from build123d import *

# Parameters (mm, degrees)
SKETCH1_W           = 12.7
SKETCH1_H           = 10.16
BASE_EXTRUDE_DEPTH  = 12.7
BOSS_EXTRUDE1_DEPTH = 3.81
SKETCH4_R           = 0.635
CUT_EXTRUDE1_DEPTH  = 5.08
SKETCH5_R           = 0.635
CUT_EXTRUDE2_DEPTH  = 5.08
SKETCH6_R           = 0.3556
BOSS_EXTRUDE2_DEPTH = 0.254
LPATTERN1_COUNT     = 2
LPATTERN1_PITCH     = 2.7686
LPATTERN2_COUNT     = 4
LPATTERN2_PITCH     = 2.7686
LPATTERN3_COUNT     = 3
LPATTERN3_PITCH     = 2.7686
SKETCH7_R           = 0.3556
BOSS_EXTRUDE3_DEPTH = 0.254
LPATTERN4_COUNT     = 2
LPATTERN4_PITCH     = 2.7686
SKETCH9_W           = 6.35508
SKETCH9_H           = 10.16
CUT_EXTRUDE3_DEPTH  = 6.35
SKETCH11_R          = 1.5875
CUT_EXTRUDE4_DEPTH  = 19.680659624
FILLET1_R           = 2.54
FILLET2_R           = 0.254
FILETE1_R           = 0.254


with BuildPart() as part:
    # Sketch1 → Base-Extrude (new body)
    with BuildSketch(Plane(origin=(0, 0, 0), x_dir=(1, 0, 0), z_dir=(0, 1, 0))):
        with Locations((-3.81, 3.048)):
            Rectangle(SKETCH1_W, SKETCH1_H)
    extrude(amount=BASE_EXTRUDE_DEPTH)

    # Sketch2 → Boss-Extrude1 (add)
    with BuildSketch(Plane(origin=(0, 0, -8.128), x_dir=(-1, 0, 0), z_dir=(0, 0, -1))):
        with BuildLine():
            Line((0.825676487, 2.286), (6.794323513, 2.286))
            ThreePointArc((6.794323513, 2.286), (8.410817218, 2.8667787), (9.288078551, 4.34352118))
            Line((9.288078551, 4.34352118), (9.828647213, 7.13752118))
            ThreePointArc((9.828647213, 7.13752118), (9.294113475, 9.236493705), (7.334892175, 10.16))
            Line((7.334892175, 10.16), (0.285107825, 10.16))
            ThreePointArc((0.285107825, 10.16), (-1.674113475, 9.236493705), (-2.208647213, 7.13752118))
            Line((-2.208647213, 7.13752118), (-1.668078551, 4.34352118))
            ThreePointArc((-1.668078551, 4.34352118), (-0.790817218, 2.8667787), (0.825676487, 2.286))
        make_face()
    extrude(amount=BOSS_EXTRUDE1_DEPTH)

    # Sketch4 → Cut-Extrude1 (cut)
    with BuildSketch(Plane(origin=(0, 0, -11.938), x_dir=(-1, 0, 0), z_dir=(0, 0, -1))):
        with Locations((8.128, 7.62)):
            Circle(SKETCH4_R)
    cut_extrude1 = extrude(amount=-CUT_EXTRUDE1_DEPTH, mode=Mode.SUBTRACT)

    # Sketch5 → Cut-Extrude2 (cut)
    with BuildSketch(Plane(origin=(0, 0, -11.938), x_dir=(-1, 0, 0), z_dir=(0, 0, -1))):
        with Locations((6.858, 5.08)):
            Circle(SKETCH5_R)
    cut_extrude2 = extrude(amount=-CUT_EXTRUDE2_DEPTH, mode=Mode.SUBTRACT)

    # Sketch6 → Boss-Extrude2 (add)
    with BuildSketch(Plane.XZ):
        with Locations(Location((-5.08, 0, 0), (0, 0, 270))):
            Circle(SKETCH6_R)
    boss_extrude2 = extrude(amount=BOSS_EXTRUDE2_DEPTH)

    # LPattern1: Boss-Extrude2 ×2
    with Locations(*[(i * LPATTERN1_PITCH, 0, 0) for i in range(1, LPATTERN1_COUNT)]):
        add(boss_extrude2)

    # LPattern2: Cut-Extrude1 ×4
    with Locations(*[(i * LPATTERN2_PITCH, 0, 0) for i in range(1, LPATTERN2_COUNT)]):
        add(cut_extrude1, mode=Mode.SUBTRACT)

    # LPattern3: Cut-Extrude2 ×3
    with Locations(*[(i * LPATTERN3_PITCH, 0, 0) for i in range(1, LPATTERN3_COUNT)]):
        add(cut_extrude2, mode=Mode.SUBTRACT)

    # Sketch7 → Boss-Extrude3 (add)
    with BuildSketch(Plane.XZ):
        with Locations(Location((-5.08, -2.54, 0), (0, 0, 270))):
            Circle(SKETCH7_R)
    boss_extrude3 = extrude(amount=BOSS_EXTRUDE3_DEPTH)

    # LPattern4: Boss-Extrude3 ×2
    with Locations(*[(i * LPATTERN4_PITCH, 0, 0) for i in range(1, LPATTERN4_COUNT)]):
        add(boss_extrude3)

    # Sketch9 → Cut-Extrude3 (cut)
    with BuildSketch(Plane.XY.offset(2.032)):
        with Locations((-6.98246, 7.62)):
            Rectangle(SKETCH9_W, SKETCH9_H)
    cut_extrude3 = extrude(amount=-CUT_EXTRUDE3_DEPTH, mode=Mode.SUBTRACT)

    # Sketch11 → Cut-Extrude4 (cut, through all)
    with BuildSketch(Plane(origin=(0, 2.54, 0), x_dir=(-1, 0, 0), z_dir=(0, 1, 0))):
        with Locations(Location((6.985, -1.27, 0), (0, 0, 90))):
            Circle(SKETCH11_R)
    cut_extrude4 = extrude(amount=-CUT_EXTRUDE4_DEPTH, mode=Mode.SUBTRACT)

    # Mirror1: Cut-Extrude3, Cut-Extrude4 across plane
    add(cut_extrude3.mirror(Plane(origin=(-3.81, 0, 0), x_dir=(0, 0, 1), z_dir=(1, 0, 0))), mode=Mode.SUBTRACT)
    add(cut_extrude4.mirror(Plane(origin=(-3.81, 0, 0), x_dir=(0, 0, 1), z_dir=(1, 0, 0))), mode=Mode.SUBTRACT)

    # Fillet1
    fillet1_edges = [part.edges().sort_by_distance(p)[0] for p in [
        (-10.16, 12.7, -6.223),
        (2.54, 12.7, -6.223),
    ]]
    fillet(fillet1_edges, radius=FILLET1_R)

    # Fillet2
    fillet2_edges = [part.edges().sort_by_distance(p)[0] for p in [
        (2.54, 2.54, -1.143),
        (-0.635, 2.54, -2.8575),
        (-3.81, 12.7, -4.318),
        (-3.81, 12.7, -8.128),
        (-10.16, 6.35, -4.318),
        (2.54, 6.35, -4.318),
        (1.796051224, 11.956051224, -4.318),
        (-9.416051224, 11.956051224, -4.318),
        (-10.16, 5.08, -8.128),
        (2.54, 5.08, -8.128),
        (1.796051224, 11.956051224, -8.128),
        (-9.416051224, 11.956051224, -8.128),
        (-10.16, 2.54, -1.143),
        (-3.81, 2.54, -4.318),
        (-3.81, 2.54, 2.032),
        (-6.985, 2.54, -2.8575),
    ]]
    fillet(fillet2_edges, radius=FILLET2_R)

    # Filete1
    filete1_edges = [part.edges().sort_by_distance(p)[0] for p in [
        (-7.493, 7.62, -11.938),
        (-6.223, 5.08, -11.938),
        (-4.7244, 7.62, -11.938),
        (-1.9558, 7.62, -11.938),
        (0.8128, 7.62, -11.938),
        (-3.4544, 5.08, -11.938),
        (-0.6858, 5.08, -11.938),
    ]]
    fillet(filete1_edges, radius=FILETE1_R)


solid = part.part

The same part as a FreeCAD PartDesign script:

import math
import FreeCAD as App
import Part
import Sketcher

V = App.Vector
Q = App.Units.Quantity


def edges_at(feature, points):
    """Names of the edges that pass closest to the given points."""
    edges = feature.Shape.Edges
    near = lambda p: min(range(len(edges)), key=lambda i: edges[i].distToShape(Part.Vertex(*p))[0])
    return sorted({f"Edge{near(p) + 1}" for p in points})


def add_polygon(sketch, points):
    """Adds a closed chain of lines whose ends are joined by coincident constraints."""
    first, n = sketch.GeometryCount, len(points)
    for a, b in zip(points, points[1:] + points[:1]):
        sketch.addGeometry(Part.LineSegment(App.Vector(*a, 0), App.Vector(*b, 0)), False)
    for i in range(n):
        sketch.addConstraint(Sketcher.Constraint("Coincident", first + i, 2, first + (i + 1) % n, 1))

doc = App.newDocument("Part")
body = doc.addObject("PartDesign::Body", "Body")

# Sketch on XZ plane
sketch1 = body.newObject("Sketcher::SketchObject", "Sketch")
sketch1.AttachmentSupport = (doc.getObject("XZ_Plane"), [""])
sketch1.MapMode = "FlatFace"
add_polygon(sketch1, [(-10, -8), (-10, 2), (3, 2), (3, -8)])  # lines 0-3
sketch1.addConstraint([
    Sketcher.Constraint("Vertical", 0),
    Sketcher.Constraint("Horizontal", 1),
    Sketcher.Constraint("Vertical", 2),
    Sketcher.Constraint("Horizontal", 3),
    Sketcher.Constraint("DistanceX", 1, 1, 1, 2, Q("0.5 in")),
    Sketcher.Constraint("DistanceY", 0, 1, 0, 2, Q("0.4 in")),
    Sketcher.Constraint("DistanceX", 0, 2, -1, 1, Q("0.4 in")),
    Sketcher.Constraint("DistanceY", -1, 1, 0, 2, Q("0.08 in")),
])
pad1 = body.newObject("PartDesign::Pad", "Pad")
pad1.Profile = sketch1
pad1.Length = Q("0.5 in")
pad1.Reversed = True

# Sketch on XY plane
sketch2 = body.newObject("Sketcher::SketchObject", "Sketch001")
sketch2.AttachmentSupport = (doc.getObject("XY_Plane"), [""])
sketch2.MapMode = "FlatFace"
sketch2.AttachmentOffset = App.Placement(V(0, 0, -0.32 * 25.4), App.Rotation())
sketch2.addGeometry([
    Part.LineSegment(V(-0.8, 2.3, 0), V(-6.8, 2.3, 0)),  # 0
    Part.ArcOfCircle(Part.Circle(V(-6.8, 4.8, 0), V(0, 0, 1), 2.5), math.radians(-169), math.radians(-90)),  # 1
    Part.LineSegment(V(-9.3, 4.3, 0), V(-9.8, 7.1, 0)),  # 2
    Part.ArcOfCircle(Part.Circle(V(-7.3, 7.6, 0), V(0, 0, 1), 2.5), math.radians(90), math.radians(191)),  # 3
    Part.LineSegment(V(-7.3, 10.2, 0), V(-0.3, 10.2, 0)),  # 4
    Part.ArcOfCircle(Part.Circle(V(-0.3, 7.6, 0), V(0, 0, 1), 2.5), math.radians(-11), math.radians(90)),  # 5
    Part.LineSegment(V(2.2, 7.1, 0), V(1.7, 4.3, 0)),  # 6
    Part.ArcOfCircle(Part.Circle(V(-0.8, 4.8, 0), V(0, 0, 1), 2.5), math.radians(-90), math.radians(-11)),  # 7
], False)
sketch2.addConstraint([
    Sketcher.Constraint("Tangent", 0, 2, 1, 2),
    Sketcher.Constraint("Tangent", 1, 1, 2, 1),
    Sketcher.Constraint("Tangent", 2, 2, 3, 2),
    Sketcher.Constraint("Tangent", 3, 1, 4, 1),
    Sketcher.Constraint("Tangent", 4, 2, 5, 2),
    Sketcher.Constraint("Tangent", 5, 1, 6, 1),
    Sketcher.Constraint("Tangent", 6, 2, 7, 2),
    Sketcher.Constraint("Tangent", 7, 1, 0, 1),
    Sketcher.Constraint("Horizontal", 0),
    Sketcher.Constraint("Horizontal", 4),
    Sketcher.Constraint("Equal", 1, 3),
    Sketcher.Constraint("Equal", 3, 5),
    Sketcher.Constraint("Equal", 5, 7),
    Sketcher.Constraint("Horizontal", 2, 2, 5, 1),
    Sketcher.Constraint("Radius", 1, Q("0.1 in")),
    Sketcher.Constraint("DistanceY", -1, 1, 3, 3, Q("0.3 in")),
    Sketcher.Constraint("DistanceY", -1, 1, 1, 3, Q("0.19 in")),
    Sketcher.Constraint("Angle", 2, Q("100.95 deg")),
    Sketcher.Constraint("DistanceX", 0, 2, 0, 1, 5.968647),
    Sketcher.Constraint("DistanceX", 1, 1, -1, 1, 9.288079),
])
pad2 = body.newObject("PartDesign::Pad", "Pad001")
pad2.Profile = sketch2
pad2.Length = Q("0.15 in")
pad2.Reversed = True

# Sketch on XY plane
sketch3 = body.newObject("Sketcher::SketchObject", "Sketch002")
sketch3.AttachmentSupport = (doc.getObject("XY_Plane"), [""])
sketch3.MapMode = "FlatFace"
sketch3.AttachmentOffset = App.Placement(V(0, 0, -0.47 * 25.4), App.Rotation())
sketch3.addGeometry(Part.Circle(V(-8.1, 7.6, 0), V(0, 0, 1), 0.6), False)
sketch3.addConstraint([
    Sketcher.Constraint("Diameter", 0, Q("0.05 in")),
    Sketcher.Constraint("DistanceY", -1, 1, 0, 3, Q("0.3 in")),
    Sketcher.Constraint("DistanceX", 0, 3, -1, 1, Q("0.32 in")),
])
pocket1 = body.newObject("PartDesign::Pocket", "Pocket")
pocket1.Profile = sketch3
pocket1.Length = Q("0.2 in")
pocket1.Reversed = True

# Sketch on XY plane
sketch4 = body.newObject("Sketcher::SketchObject", "Sketch003")
sketch4.AttachmentSupport = (doc.getObject("XY_Plane"), [""])
sketch4.MapMode = "FlatFace"
sketch4.AttachmentOffset = App.Placement(V(0, 0, -0.47 * 25.4), App.Rotation())
sketch4.addGeometry(Part.Circle(V(-6.9, 5.1, 0), V(0, 0, 1), 0.6), False)
sketch4.addConstraint([
    Sketcher.Constraint("Diameter", 0, Q("0.05 in")),
    Sketcher.Constraint("DistanceY", -1, 1, 0, 3, Q("0.2 in")),
    Sketcher.Constraint("DistanceX", 0, 3, -1, 1, Q("0.27 in")),
])
pocket2 = body.newObject("PartDesign::Pocket", "Pocket001")
pocket2.Profile = sketch4
pocket2.Length = Q("0.2 in")
pocket2.Reversed = True

# Sketch on XZ plane
sketch5 = body.newObject("Sketcher::SketchObject", "Sketch004")
sketch5.AttachmentSupport = (doc.getObject("XZ_Plane"), [""])
sketch5.MapMode = "FlatFace"
sketch5.addGeometry(Part.Circle(V(-5.08, 0, 0), V(0, 0, 1), 0.36), False)
sketch5.addConstraint([
    Sketcher.Constraint("PointOnObject", 0, 3, -1),
    Sketcher.Constraint("Diameter", 0, Q("0.028 in")),
    Sketcher.Constraint("DistanceX", 0, 3, -1, 1, Q("0.2 in")),
])
pad3 = body.newObject("PartDesign::Pad", "Pad002")
pad3.Profile = sketch5
pad3.Length = Q("0.01 in")
doc.recompute()

linearpattern = body.newObject("PartDesign::LinearPattern", "LinearPattern")
linearpattern.Originals = [pad3]
linearpattern.Direction = (doc.getObject("X_Axis"), [""])
linearpattern.Mode = "offset"
linearpattern.Offset = Q("0.109 in")
linearpattern.Occurrences = 2
body.Tip = linearpattern
doc.recompute()

linearpattern2 = body.newObject("PartDesign::LinearPattern", "LinearPattern001")
linearpattern2.Originals = [pocket1]
linearpattern2.Direction = (doc.getObject("X_Axis"), [""])
linearpattern2.Mode = "offset"
linearpattern2.Offset = Q("0.109 in")
linearpattern2.Occurrences = 4
body.Tip = linearpattern2
doc.recompute()

linearpattern3 = body.newObject("PartDesign::LinearPattern", "LinearPattern002")
linearpattern3.Originals = [pocket2]
linearpattern3.Direction = (doc.getObject("X_Axis"), [""])
linearpattern3.Mode = "offset"
linearpattern3.Offset = Q("0.109 in")
linearpattern3.Occurrences = 3
body.Tip = linearpattern3

# Sketch on XZ plane
sketch6 = body.newObject("Sketcher::SketchObject", "Sketch005")
sketch6.AttachmentSupport = (doc.getObject("XZ_Plane"), [""])
sketch6.MapMode = "FlatFace"
sketch6.addGeometry(Part.Circle(V(-5.08, -2.54, 0), V(0, 0, 1), 0.36), False)
sketch6.addConstraint([
    Sketcher.Constraint("Diameter", 0, Q("0.028 in")),
    Sketcher.Constraint("DistanceX", 0, 3, -1, 1, Q("0.2 in")),
    Sketcher.Constraint("DistanceY", 0, 3, -1, 1, Q("0.1 in")),
])
pad4 = body.newObject("PartDesign::Pad", "Pad003")
pad4.Profile = sketch6
pad4.Length = Q("0.01 in")
doc.recompute()

linearpattern4 = body.newObject("PartDesign::LinearPattern", "LinearPattern003")
linearpattern4.Originals = [pad4]
linearpattern4.Direction = (doc.getObject("X_Axis"), [""])
linearpattern4.Mode = "offset"
linearpattern4.Offset = Q("0.109 in")
linearpattern4.Occurrences = 2
body.Tip = linearpattern4

# Sketch on XY plane
sketch7 = body.newObject("Sketcher::SketchObject", "Sketch006")
sketch7.AttachmentSupport = (doc.getObject("XY_Plane"), [""])
sketch7.MapMode = "FlatFace"
sketch7.AttachmentOffset = App.Placement(V(0, 0, 0.08 * 25.4), App.Rotation())
add_polygon(sketch7, [(-10, 13), (-10, 3), (-4, 3), (-4, 13)])  # lines 0-3
sketch7.addConstraint([
    Sketcher.Constraint("Vertical", 0),
    Sketcher.Constraint("Horizontal", 1),
    Sketcher.Constraint("Vertical", 2),
    Sketcher.Constraint("Horizontal", 3),
    Sketcher.Constraint("DistanceY", 0, 2, 0, 1, Q("0.4 in")),
    Sketcher.Constraint("DistanceX", 0, 2, -1, 1, Q("0.4 in")),
    Sketcher.Constraint("DistanceY", -1, 1, 0, 2, Q("0.1 in")),
    Sketcher.Constraint("DistanceX", 1, 1, 1, 2, Q("0.2502 in")),
])
pocket3 = body.newObject("PartDesign::Pocket", "Pocket002")
pocket3.Profile = sketch7
pocket3.Length = Q("0.25 in")

# Sketch on XZ plane
sketch8 = body.newObject("Sketcher::SketchObject", "Sketch007")
sketch8.AttachmentSupport = (doc.getObject("XZ_Plane"), [""])
sketch8.MapMode = "FlatFace"
sketch8.AttachmentOffset = App.Placement(V(0, 0, -0.1 * 25.4), App.Rotation())
sketch8.addGeometry(Part.Circle(V(-7, -1.3, 0), V(0, 0, 1), 1.6), False)
sketch8.addConstraint([
    Sketcher.Constraint("Diameter", 0, Q("0.125 in")),
    Sketcher.Constraint("DistanceY", 0, 3, -1, 1, Q("0.05 in")),
    Sketcher.Constraint("DistanceX", 0, 3, -1, 1, Q("0.275 in")),
])
pocket4 = body.newObject("PartDesign::Pocket", "Pocket003")
pocket4.Profile = sketch8
pocket4.Type = "ThroughAll"
pocket4.Reversed = True
doc.recompute()

datumplane = body.newObject("PartDesign::Plane", "DatumPlane")
datumplane.AttachmentSupport = (doc.getObject("YZ_Plane"), [""])
datumplane.MapMode = "FlatFace"
datumplane.AttachmentOffset = App.Placement(V(0, 0, -0.15 * 25.4), App.Rotation())
mirrored = body.newObject("PartDesign::Mirrored", "Mirrored")
mirrored.Originals = [pocket3, pocket4]
mirrored.MirrorPlane = (datumplane, [""])
body.Tip = mirrored
doc.recompute()

fillet = body.newObject("PartDesign::Fillet", "Fillet")
fillet.Base = (mirrored, edges_at(mirrored, [(-10.16, 12.7, -6.223), (2.54, 12.7, -6.223)]))
fillet.Radius = Q("0.1 in")
doc.recompute()

fillet2 = body.newObject("PartDesign::Fillet", "Fillet001")
fillet2.Base = (fillet, edges_at(fillet, [
    (2.54, 2.54, -1.143),
    (-0.635, 2.54, -2.857),
    (-3.81, 12.7, -4.318),
    (-3.81, 12.7, -8.128),
    (-10.16, 6.35, -4.318),
    (2.54, 6.35, -4.318),
    (1.796, 11.956, -4.318),
    (-9.416, 11.956, -4.318),
    (-10.16, 5.08, -8.128),
    (2.54, 5.08, -8.128),
    (1.796, 11.956, -8.128),
    (-9.416, 11.956, -8.128),
    (-10.16, 2.54, -1.143),
    (-3.81, 2.54, -4.318),
    (-3.81, 2.54, 2.032),
    (-6.985, 2.54, -2.857),
]))
fillet2.Radius = Q("0.01 in")
doc.recompute()

fillet3 = body.newObject("PartDesign::Fillet", "Fillet002")
fillet3.Base = (fillet2, edges_at(fillet2, [
    (-7.493, 7.62, -11.938),
    (-6.223, 5.08, -11.938),
    (-4.724, 7.62, -11.938),
    (-1.956, 7.62, -11.938),
    (0.813, 7.62, -11.938),
    (-3.454, 5.08, -11.938),
    (-0.686, 5.08, -11.938),
]))
fillet3.Radius = Q("0.01 in")

doc.recompute()
